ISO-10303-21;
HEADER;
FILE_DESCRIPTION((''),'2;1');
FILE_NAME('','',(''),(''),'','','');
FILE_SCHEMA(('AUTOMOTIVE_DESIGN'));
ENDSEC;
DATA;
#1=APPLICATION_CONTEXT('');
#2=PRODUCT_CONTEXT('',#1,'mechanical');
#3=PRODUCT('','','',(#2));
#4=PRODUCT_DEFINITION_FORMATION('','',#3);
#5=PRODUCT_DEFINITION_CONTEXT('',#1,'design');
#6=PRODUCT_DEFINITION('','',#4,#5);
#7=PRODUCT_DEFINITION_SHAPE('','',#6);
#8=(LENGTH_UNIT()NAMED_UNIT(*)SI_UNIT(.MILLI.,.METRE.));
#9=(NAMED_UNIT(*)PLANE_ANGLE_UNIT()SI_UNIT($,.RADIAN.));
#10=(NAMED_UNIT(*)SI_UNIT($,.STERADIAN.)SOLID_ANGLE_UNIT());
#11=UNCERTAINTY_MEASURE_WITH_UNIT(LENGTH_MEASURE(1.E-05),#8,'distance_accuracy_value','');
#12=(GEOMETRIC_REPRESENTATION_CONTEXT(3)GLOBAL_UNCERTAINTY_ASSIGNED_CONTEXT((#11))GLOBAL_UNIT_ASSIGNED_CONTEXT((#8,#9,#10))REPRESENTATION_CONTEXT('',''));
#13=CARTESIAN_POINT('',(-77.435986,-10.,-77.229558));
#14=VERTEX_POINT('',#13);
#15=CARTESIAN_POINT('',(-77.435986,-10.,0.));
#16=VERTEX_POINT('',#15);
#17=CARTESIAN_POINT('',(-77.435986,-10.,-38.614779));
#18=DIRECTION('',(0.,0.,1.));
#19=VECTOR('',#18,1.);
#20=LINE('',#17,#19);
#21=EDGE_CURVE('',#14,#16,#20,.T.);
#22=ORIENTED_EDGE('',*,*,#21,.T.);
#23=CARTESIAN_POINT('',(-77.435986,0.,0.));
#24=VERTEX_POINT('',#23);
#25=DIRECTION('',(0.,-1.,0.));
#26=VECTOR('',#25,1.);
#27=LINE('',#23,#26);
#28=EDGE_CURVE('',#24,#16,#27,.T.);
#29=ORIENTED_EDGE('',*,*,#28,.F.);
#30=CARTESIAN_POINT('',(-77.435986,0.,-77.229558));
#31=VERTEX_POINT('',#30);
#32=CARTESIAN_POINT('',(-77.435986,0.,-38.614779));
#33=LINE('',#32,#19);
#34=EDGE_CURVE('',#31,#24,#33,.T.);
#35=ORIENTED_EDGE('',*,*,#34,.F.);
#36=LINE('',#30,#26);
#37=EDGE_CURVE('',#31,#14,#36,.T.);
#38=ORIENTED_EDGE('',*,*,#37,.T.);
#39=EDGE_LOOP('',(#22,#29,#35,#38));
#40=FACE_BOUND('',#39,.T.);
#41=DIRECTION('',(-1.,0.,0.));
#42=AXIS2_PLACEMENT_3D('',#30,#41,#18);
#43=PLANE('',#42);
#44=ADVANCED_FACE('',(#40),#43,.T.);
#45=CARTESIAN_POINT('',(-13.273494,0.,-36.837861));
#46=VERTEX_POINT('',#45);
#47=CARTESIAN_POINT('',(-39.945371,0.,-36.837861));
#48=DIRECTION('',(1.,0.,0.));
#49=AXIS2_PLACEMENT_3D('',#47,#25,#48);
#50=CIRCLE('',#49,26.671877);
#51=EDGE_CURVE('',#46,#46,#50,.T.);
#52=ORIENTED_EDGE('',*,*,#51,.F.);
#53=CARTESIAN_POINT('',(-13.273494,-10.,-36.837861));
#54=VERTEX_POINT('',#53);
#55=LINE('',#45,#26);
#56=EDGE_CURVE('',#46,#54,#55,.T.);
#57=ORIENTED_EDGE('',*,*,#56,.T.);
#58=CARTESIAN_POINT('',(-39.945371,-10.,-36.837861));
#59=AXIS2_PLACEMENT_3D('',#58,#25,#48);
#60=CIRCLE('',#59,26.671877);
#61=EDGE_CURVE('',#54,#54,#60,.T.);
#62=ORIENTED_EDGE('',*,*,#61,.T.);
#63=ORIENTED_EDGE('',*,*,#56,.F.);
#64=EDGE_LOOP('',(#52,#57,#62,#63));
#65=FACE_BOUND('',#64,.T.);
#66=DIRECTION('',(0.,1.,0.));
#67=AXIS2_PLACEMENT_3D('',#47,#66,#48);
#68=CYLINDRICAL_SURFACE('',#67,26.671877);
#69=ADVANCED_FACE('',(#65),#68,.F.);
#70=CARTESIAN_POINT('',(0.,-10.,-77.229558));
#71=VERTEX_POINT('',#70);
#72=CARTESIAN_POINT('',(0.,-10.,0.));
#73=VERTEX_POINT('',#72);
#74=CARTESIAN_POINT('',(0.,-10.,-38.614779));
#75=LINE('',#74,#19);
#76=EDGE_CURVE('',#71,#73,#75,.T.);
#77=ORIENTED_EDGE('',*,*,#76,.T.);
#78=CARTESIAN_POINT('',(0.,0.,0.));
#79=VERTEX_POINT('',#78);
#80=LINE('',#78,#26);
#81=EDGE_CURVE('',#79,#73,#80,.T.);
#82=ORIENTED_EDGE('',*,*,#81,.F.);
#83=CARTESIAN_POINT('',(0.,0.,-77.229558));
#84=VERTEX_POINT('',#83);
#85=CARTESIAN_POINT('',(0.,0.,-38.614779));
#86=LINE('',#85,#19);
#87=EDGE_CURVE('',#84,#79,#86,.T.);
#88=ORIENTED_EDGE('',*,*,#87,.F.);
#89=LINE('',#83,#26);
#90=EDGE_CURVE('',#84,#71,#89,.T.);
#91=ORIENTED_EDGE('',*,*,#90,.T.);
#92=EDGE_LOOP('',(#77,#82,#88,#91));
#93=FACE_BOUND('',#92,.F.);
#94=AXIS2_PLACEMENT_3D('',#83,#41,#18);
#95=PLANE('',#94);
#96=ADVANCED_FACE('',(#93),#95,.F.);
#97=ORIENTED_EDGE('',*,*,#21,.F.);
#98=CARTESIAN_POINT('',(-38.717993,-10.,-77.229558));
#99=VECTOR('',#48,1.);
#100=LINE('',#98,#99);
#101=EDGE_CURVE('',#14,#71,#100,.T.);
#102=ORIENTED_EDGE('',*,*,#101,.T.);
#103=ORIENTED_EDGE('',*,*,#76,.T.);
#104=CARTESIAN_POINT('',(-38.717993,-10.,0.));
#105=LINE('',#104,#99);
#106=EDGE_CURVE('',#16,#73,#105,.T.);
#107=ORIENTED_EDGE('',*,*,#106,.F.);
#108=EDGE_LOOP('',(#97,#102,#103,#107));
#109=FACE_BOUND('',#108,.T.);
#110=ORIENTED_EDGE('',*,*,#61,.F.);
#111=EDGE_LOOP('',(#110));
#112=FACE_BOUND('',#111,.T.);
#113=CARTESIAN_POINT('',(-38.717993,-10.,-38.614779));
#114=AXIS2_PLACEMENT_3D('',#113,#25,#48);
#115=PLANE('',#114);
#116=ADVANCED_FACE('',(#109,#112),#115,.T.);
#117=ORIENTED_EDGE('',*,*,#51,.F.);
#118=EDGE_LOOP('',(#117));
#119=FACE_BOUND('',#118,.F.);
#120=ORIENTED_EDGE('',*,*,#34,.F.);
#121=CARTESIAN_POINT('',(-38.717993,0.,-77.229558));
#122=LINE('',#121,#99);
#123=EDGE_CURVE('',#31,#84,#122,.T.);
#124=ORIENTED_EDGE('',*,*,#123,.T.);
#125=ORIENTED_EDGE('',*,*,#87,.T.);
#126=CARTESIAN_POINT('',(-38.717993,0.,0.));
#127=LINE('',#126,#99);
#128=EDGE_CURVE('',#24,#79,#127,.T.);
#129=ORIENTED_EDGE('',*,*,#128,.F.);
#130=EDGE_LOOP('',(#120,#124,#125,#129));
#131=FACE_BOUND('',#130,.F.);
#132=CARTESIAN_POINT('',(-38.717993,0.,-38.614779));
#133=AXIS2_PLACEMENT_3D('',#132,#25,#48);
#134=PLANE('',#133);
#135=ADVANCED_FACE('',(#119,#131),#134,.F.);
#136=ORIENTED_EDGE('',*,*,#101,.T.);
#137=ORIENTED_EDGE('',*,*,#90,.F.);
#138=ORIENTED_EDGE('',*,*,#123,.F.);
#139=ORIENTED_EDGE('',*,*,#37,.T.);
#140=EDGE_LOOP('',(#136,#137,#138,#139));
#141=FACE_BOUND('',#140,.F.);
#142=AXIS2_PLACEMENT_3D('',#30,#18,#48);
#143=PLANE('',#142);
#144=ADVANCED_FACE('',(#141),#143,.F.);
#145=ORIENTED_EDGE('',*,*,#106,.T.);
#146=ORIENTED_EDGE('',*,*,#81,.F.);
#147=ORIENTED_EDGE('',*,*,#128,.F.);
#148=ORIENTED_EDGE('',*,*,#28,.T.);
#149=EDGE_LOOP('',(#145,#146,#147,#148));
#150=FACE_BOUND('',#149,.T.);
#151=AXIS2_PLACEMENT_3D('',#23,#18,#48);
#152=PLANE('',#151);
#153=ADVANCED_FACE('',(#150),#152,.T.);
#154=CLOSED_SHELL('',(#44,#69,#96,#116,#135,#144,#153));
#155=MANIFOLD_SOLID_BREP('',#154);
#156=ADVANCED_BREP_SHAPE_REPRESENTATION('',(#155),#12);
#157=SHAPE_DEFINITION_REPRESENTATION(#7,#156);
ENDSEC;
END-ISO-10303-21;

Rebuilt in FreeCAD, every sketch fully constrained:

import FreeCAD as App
import Part
import Sketcher

V = App.Vector
Q = App.Units.Quantity


def add_polygon(sketch, points):
    """Adds a closed chain of lines whose ends are joined by coincident constraints."""
    first, n = sketch.GeometryCount, len(points)
    for a, b in zip(points, points[1:] + points[:1]):
        sketch.addGeometry(Part.LineSegment(App.Vector(*a, 0), App.Vector(*b, 0)), False)
    for i in range(n):
        sketch.addConstraint(Sketcher.Constraint("Coincident", first + i, 2, first + (i + 1) % n, 1))

doc = App.newDocument("Part")
body = doc.addObject("PartDesign::Body", "Body")

sketch1 = body.newObject("Sketcher::SketchObject", "Sketch")
sketch1.AttachmentSupport = (doc.getObject("XZ_Plane"), [""])
sketch1.MapMode = "FlatFace"
add_polygon(sketch1, [(-77, 0), (-77, -77), (0, -77), (0, 0)])
sketch1.addGeometry(Part.Circle(V(-40, -37, 0), V(0, 0, 1), 27), False)
sketch1.addConstraint([
    Sketcher.Constraint("Vertical", 0),
    Sketcher.Constraint("Horizontal", 1),
    Sketcher.Constraint("Vertical", 2),
    Sketcher.Constraint("Horizontal", 3),
    Sketcher.Constraint("Coincident", 2, 2, -1, 1),
    Sketcher.Constraint("Diameter", 4, Q("53.343754 mm")),
    Sketcher.Constraint("DistanceY", 0, 2, 0, 1, Q("77.229559 mm")),
    Sketcher.Constraint("DistanceX", 1, 1, 1, 2, Q("77.435985 mm")),
    Sketcher.Constraint("DistanceX", 4, 3, -1, 1, Q("39.945371 mm")),
    Sketcher.Constraint("DistanceY", 4, 3, -1, 1, Q("36.837861 mm")),
])
pad1 = body.newObject("PartDesign::Pad", "Pad")
pad1.Profile = sketch1
pad1.Length = 10

doc.recompute()
